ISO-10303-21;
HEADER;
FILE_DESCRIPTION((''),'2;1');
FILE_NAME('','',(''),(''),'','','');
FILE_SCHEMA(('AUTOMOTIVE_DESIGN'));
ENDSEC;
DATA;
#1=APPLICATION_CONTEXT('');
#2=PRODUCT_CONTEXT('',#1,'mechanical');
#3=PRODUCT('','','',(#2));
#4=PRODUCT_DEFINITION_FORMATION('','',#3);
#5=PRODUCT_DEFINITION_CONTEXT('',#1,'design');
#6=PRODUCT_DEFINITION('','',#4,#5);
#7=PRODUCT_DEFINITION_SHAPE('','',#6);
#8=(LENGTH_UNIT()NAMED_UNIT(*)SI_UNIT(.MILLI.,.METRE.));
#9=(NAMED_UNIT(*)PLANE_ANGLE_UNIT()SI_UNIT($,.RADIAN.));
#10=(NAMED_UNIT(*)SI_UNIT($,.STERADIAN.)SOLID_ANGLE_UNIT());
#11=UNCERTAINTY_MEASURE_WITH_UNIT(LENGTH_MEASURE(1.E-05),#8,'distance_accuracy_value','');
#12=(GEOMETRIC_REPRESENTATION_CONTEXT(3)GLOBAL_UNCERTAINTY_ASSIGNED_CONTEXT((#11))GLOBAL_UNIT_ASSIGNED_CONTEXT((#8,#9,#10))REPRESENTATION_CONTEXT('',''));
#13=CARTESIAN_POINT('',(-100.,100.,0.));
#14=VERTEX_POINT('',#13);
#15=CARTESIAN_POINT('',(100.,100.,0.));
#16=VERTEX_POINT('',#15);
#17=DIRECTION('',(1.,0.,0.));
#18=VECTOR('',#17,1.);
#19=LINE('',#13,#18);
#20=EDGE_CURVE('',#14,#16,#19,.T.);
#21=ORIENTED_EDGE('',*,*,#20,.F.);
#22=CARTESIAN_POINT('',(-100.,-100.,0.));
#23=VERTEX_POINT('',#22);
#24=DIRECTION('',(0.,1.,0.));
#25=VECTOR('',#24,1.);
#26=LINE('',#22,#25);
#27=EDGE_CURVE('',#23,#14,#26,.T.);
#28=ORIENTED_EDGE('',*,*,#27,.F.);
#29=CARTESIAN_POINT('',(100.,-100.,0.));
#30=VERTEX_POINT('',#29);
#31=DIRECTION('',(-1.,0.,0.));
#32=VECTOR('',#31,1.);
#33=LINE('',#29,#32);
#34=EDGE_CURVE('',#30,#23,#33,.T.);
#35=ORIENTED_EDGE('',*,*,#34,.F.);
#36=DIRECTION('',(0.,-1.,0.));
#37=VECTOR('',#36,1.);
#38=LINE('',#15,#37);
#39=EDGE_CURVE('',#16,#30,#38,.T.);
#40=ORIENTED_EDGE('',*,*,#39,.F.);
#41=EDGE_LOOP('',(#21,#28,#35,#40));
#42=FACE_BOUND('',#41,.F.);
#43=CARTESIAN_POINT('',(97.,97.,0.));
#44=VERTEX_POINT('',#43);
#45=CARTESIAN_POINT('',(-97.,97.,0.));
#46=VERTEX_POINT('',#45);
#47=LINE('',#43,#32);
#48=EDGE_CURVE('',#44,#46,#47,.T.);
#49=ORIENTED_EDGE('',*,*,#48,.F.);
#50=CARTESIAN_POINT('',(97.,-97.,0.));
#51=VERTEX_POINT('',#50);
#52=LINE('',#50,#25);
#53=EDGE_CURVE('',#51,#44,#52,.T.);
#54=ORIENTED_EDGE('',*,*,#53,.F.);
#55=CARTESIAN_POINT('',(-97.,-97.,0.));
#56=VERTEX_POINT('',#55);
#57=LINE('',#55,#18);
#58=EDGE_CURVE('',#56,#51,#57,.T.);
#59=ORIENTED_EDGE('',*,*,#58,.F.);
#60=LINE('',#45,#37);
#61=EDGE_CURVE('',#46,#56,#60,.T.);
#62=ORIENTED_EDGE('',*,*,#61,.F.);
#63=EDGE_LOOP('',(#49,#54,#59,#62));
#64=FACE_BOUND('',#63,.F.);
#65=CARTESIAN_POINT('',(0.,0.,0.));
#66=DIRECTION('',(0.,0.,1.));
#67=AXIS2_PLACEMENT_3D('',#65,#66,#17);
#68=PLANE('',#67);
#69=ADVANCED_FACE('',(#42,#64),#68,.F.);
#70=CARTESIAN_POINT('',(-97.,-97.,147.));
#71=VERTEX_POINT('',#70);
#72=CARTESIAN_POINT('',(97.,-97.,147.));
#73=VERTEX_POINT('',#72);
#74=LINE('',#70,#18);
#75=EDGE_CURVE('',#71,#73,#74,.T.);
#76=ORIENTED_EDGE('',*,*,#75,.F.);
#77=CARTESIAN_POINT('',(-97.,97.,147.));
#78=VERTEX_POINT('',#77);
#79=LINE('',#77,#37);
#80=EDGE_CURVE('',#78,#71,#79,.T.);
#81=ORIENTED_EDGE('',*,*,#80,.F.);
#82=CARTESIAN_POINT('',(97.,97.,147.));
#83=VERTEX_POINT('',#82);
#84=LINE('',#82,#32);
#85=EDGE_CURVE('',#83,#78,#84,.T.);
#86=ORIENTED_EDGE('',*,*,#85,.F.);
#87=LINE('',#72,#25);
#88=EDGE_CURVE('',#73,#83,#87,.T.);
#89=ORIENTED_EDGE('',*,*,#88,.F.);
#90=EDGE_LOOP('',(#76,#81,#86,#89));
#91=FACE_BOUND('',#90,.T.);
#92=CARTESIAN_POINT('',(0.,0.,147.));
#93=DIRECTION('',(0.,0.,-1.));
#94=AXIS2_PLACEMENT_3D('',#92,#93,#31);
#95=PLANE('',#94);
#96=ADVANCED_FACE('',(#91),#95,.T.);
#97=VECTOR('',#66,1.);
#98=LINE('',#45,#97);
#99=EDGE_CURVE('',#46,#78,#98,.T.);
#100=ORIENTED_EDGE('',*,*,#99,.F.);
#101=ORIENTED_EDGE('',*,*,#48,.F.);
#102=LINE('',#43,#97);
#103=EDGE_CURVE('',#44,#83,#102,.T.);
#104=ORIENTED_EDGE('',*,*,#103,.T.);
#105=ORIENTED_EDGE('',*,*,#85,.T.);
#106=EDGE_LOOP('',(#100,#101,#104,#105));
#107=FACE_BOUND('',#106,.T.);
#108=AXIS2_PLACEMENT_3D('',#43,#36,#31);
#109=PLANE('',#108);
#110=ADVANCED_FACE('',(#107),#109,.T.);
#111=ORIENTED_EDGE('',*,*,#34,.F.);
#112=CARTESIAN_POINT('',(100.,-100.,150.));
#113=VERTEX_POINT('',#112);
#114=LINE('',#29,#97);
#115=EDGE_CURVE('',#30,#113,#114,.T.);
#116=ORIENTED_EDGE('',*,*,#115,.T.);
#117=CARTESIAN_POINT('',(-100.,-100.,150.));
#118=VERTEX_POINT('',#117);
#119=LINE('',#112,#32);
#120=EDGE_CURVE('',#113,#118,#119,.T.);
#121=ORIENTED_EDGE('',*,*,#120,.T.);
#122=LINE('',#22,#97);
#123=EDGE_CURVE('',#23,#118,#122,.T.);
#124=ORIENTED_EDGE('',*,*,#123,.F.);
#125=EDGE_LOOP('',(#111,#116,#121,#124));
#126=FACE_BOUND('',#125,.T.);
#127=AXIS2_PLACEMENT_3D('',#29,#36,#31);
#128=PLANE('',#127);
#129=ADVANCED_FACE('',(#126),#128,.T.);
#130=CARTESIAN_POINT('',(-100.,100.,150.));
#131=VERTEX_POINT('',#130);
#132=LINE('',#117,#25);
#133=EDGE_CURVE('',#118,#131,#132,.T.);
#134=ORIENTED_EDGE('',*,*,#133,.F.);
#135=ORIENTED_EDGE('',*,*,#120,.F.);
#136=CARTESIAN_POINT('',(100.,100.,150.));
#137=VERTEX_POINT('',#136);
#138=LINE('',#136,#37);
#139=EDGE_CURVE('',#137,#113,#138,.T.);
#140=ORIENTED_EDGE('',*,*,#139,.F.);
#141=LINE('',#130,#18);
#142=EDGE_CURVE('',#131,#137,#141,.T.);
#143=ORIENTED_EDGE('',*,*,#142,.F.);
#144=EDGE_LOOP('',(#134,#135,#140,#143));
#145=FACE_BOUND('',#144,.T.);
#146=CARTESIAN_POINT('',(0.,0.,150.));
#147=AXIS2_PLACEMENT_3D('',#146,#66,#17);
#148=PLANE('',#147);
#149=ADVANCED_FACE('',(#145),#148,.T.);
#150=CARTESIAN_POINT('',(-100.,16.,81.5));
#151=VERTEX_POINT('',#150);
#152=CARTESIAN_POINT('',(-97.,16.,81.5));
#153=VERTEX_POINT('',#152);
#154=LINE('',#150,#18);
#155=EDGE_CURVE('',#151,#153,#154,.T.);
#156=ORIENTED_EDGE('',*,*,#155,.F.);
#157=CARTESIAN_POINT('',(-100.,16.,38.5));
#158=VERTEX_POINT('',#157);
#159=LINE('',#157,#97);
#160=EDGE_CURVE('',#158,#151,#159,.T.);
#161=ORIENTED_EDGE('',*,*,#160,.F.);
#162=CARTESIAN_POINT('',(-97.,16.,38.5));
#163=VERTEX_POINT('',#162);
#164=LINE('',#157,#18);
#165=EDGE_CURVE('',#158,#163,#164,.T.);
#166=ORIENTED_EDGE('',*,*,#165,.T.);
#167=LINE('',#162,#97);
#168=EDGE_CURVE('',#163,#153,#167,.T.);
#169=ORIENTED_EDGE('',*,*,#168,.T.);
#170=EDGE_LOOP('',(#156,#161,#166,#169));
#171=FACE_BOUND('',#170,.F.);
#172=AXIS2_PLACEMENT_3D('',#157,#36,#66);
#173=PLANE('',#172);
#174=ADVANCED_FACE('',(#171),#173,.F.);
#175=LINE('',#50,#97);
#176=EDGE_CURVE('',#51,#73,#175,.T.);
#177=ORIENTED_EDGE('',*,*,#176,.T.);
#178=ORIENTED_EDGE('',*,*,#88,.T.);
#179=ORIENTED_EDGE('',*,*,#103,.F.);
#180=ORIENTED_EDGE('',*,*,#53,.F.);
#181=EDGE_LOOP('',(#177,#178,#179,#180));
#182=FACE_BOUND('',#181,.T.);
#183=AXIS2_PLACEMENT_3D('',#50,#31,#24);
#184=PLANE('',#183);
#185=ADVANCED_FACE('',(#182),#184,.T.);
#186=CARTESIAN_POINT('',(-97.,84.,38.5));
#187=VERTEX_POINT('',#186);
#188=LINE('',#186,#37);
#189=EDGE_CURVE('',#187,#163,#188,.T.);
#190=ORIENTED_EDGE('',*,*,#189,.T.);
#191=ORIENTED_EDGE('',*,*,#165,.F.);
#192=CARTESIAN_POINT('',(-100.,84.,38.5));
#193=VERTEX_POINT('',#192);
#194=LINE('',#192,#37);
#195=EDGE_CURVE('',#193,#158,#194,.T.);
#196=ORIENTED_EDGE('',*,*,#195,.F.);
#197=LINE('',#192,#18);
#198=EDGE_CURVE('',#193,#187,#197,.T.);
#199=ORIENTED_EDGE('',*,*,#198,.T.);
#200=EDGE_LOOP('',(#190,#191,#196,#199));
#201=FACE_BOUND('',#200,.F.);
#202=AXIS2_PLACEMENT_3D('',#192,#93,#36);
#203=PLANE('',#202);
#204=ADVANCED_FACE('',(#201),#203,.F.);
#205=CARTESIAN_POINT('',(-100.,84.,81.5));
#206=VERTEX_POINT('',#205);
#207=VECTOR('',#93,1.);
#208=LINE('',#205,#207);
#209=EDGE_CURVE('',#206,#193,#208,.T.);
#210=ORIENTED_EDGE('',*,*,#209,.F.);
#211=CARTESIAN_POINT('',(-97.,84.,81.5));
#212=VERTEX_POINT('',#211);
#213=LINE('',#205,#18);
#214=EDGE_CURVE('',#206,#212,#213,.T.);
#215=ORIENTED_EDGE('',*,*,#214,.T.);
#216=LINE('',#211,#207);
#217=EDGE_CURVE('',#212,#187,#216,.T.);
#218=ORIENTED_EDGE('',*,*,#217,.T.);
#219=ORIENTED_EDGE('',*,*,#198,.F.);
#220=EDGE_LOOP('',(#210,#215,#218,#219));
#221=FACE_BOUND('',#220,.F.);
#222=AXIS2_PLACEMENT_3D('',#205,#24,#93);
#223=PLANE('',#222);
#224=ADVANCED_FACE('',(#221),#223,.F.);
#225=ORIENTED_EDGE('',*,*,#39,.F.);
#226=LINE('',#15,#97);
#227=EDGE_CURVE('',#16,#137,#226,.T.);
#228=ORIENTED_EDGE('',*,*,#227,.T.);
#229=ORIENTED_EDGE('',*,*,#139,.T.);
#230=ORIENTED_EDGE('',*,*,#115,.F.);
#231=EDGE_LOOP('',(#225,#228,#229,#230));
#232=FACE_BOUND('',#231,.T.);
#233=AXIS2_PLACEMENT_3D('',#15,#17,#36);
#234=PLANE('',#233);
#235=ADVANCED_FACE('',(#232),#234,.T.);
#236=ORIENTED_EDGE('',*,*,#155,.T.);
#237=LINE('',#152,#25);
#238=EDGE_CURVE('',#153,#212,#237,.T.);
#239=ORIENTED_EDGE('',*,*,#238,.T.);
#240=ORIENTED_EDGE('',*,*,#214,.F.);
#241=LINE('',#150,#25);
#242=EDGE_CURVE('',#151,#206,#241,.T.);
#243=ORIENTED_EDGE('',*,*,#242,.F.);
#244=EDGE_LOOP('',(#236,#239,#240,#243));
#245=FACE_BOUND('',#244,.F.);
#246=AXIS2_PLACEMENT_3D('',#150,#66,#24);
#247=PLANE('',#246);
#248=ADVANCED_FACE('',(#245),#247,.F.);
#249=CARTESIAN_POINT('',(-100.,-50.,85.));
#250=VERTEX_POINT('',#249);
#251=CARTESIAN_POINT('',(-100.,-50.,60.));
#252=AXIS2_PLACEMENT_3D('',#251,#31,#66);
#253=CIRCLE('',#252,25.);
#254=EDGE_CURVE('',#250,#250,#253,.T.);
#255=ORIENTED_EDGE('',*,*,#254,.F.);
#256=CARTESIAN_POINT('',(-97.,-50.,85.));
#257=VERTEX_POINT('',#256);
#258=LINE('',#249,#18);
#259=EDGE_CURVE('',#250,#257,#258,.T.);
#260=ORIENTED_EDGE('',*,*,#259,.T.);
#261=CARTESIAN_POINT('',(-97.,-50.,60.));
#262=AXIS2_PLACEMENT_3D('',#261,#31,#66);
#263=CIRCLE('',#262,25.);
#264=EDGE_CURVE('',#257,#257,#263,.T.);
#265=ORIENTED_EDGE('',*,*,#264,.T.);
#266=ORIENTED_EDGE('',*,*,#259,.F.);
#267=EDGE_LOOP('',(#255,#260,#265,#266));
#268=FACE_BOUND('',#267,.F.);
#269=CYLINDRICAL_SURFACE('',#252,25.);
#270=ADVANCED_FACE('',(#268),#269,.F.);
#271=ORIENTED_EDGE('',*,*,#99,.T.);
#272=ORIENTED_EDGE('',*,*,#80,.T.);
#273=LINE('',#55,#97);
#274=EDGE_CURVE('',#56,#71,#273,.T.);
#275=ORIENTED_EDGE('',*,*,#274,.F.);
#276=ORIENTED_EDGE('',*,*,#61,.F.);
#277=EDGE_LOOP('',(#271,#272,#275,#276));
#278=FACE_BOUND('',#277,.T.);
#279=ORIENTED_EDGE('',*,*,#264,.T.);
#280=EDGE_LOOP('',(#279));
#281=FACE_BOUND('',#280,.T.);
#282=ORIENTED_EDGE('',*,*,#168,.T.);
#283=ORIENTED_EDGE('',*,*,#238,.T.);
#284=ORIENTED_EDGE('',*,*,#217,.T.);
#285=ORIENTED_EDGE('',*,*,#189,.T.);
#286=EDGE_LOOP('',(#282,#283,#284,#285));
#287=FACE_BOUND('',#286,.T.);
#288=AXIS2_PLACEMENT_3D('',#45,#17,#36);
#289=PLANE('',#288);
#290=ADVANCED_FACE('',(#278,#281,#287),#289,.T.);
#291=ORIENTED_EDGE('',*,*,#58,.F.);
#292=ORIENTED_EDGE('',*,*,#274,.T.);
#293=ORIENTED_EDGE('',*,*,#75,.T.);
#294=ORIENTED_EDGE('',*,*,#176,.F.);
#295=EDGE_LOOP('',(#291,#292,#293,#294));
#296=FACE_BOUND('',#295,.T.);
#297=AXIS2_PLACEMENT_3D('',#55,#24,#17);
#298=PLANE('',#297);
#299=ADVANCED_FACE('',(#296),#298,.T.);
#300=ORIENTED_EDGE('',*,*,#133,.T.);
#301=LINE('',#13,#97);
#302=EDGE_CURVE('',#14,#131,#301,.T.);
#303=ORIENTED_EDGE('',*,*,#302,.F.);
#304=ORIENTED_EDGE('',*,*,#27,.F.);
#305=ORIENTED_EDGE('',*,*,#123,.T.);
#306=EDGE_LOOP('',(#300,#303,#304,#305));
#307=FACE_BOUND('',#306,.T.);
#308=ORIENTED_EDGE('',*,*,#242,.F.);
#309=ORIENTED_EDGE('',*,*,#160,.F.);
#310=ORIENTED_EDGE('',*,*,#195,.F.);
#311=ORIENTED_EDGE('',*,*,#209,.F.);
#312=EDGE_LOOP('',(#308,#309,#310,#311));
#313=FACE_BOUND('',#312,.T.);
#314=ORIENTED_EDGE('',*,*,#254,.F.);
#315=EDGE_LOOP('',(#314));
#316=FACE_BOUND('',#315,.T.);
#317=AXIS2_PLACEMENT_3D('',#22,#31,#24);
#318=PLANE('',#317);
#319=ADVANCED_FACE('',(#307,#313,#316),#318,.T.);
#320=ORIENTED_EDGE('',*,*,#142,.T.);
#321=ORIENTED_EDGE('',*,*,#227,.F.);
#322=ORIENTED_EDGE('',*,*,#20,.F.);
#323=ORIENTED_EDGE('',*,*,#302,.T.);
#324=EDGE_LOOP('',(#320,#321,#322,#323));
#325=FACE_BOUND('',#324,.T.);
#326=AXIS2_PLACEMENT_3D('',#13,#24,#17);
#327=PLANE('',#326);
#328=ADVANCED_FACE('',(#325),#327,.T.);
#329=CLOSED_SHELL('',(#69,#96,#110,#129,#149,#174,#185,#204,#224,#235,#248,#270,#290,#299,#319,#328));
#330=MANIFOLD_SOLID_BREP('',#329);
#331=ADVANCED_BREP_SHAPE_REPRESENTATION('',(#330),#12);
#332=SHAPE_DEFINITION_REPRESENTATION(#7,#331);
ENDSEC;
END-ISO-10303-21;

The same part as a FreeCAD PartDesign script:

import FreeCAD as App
import Part
import Sketcher

V = App.Vector

doc = App.newDocument("Part")
params = doc.addObject("Spreadsheet::Sheet", "Params")
for row, (alias, value) in enumerate([
    ("sketch1_width", "200 mm"),
    ("pad1_length", "150 mm"),
    ("sketch2_width", "194 mm"),
    ("pocket1_length", "147 mm"),
    ("sketch3_diameter", "50 mm"),
    ("sketch3_width", "68 mm"),
    ("sketch3_height", "43 mm"),
    ("pocket2_length", "3 mm"),
], start=1):
    params.set(f"A{row}", alias)
    params.set(f"B{row}", "=" + value)
    params.setAlias(f"B{row}", alias)

body = doc.addObject("PartDesign::Body", "Body")

# Sketch on XY plane
sketch1 = body.newObject("Sketcher::SketchObject", "Sketch")
sketch1.AttachmentSupport = (doc.getObject("XY_Plane"), [""])
sketch1.MapMode = "FlatFace"
sketch1.addGeometry([
    Part.LineSegment(V(-100, -100, 0), V(100, -100, 0)),
    Part.LineSegment(V(100, -100, 0), V(100, 100, 0)),
    Part.LineSegment(V(100, 100, 0), V(-100, 100, 0)),
    Part.LineSegment(V(-100, 100, 0), V(-100, -100, 0)),
], False)
sketch1.addConstraint([
    Sketcher.Constraint("Coincident", 0, 2, 1, 1),
    Sketcher.Constraint("Coincident", 1, 2, 2, 1),
    Sketcher.Constraint("Coincident", 2, 2, 3, 1),
    Sketcher.Constraint("Coincident", 3, 2, 0, 1),
    Sketcher.Constraint("Horizontal", 0),
    Sketcher.Constraint("Vertical", 1),
    Sketcher.Constraint("Horizontal", 2),
    Sketcher.Constraint("Vertical", 3),
    Sketcher.Constraint("Symmetric", 0, 2, 2, 2, -1, 1),
    Sketcher.Constraint("Equal", 2, 1),
    Sketcher.Constraint("DistanceX", 0, 1, 0, 2, 200.0),
])
sketch1.setExpression("Constraints[10]", "Params.sketch1_width")
pad1 = body.newObject("PartDesign::Pad", "Pad")
pad1.Profile = sketch1
pad1.setExpression("Length", "Params.pad1_length")

# Sketch on XY plane
sketch2 = body.newObject("Sketcher::SketchObject", "Sketch001")
sketch2.AttachmentSupport = (doc.getObject("XY_Plane"), [""])
sketch2.MapMode = "FlatFace"
sketch2.addGeometry([
    Part.LineSegment(V(-97, 97, 0), V(97, 97, 0)),
    Part.LineSegment(V(97, 97, 0), V(97, -97, 0)),
    Part.LineSegment(V(97, -97, 0), V(-97, -97, 0)),
    Part.LineSegment(V(-97, -97, 0), V(-97, 97, 0)),
], False)
sketch2.addConstraint([
    Sketcher.Constraint("Coincident", 0, 2, 1, 1),
    Sketcher.Constraint("Coincident", 1, 2, 2, 1),
    Sketcher.Constraint("Coincident", 2, 2, 3, 1),
    Sketcher.Constraint("Coincident", 3, 2, 0, 1),
    Sketcher.Constraint("Horizontal", 0),
    Sketcher.Constraint("Vertical", 1),
    Sketcher.Constraint("Horizontal", 2),
    Sketcher.Constraint("Vertical", 3),
    Sketcher.Constraint("Symmetric", 0, 2, 2, 2, -1, 1),
    Sketcher.Constraint("Equal", 2, 1),
    Sketcher.Constraint("DistanceX", 0, 1, 0, 2, 194.0),
])
sketch2.setExpression("Constraints[10]", "Params.sketch2_width")
pocket1 = body.newObject("PartDesign::Pocket", "Pocket")
pocket1.Profile = sketch2
pocket1.setExpression("Length", "Params.pocket1_length")
pocket1.Reversed = True

# Sketch on YZ plane
sketch3 = body.newObject("Sketcher::SketchObject", "Sketch002")
sketch3.AttachmentSupport = (doc.getObject("YZ_Plane"), [""])
sketch3.MapMode = "FlatFace"
sketch3.AttachmentOffset = App.Placement(V(0, 0, -100), App.Rotation())
sketch3.addGeometry([
    Part.LineSegment(V(84, 38, 0), V(16, 38, 0)),  # 0
    Part.LineSegment(V(16, 38, 0), V(16, 82, 0)),  # 1
    Part.LineSegment(V(16, 82, 0), V(84, 82, 0)),  # 2
    Part.LineSegment(V(84, 82, 0), V(84, 38, 0)),  # 3
    Part.Circle(V(-50, 60, 0), V(0, 0, 1), 25),  # 4
], False)
sketch3.addConstraint([
    Sketcher.Constraint("Coincident", 0, 2, 1, 1),
    Sketcher.Constraint("Coincident", 1, 2, 2, 1),
    Sketcher.Constraint("Coincident", 2, 2, 3, 1),
    Sketcher.Constraint("Coincident", 3, 2, 0, 1),
    Sketcher.Constraint("Horizontal", 0),
    Sketcher.Constraint("Vertical", 1),
    Sketcher.Constraint("Horizontal", 2),
    Sketcher.Constraint("Vertical", 3),
    Sketcher.Constraint("Diameter", 4, 50.0),
    Sketcher.Constraint("DistanceX", 0, 2, 0, 1, 68.0),
    Sketcher.Constraint("DistanceY", 1, 1, 1, 2, 43.0),
    Sketcher.Constraint("DistanceX", 4, 3, -1, 1, 50.0),
    Sketcher.Constraint("DistanceY", -1, 1, 4, 3, 60.0),
    Sketcher.Constraint("DistanceX", -1, 1, 0, 2, 16.0),
    Sketcher.Constraint("DistanceY", -1, 1, 0, 2, 38.5),
])
sketch3.setExpression("Constraints[8]", "Params.sketch3_diameter")
sketch3.setExpression("Constraints[9]", "Params.sketch3_width")
sketch3.setExpression("Constraints[10]", "Params.sketch3_height")
pocket2 = body.newObject("PartDesign::Pocket", "Pocket001")
pocket2.Profile = sketch3
pocket2.setExpression("Length", "Params.pocket2_length")
pocket2.Reversed = True

doc.recompute()
